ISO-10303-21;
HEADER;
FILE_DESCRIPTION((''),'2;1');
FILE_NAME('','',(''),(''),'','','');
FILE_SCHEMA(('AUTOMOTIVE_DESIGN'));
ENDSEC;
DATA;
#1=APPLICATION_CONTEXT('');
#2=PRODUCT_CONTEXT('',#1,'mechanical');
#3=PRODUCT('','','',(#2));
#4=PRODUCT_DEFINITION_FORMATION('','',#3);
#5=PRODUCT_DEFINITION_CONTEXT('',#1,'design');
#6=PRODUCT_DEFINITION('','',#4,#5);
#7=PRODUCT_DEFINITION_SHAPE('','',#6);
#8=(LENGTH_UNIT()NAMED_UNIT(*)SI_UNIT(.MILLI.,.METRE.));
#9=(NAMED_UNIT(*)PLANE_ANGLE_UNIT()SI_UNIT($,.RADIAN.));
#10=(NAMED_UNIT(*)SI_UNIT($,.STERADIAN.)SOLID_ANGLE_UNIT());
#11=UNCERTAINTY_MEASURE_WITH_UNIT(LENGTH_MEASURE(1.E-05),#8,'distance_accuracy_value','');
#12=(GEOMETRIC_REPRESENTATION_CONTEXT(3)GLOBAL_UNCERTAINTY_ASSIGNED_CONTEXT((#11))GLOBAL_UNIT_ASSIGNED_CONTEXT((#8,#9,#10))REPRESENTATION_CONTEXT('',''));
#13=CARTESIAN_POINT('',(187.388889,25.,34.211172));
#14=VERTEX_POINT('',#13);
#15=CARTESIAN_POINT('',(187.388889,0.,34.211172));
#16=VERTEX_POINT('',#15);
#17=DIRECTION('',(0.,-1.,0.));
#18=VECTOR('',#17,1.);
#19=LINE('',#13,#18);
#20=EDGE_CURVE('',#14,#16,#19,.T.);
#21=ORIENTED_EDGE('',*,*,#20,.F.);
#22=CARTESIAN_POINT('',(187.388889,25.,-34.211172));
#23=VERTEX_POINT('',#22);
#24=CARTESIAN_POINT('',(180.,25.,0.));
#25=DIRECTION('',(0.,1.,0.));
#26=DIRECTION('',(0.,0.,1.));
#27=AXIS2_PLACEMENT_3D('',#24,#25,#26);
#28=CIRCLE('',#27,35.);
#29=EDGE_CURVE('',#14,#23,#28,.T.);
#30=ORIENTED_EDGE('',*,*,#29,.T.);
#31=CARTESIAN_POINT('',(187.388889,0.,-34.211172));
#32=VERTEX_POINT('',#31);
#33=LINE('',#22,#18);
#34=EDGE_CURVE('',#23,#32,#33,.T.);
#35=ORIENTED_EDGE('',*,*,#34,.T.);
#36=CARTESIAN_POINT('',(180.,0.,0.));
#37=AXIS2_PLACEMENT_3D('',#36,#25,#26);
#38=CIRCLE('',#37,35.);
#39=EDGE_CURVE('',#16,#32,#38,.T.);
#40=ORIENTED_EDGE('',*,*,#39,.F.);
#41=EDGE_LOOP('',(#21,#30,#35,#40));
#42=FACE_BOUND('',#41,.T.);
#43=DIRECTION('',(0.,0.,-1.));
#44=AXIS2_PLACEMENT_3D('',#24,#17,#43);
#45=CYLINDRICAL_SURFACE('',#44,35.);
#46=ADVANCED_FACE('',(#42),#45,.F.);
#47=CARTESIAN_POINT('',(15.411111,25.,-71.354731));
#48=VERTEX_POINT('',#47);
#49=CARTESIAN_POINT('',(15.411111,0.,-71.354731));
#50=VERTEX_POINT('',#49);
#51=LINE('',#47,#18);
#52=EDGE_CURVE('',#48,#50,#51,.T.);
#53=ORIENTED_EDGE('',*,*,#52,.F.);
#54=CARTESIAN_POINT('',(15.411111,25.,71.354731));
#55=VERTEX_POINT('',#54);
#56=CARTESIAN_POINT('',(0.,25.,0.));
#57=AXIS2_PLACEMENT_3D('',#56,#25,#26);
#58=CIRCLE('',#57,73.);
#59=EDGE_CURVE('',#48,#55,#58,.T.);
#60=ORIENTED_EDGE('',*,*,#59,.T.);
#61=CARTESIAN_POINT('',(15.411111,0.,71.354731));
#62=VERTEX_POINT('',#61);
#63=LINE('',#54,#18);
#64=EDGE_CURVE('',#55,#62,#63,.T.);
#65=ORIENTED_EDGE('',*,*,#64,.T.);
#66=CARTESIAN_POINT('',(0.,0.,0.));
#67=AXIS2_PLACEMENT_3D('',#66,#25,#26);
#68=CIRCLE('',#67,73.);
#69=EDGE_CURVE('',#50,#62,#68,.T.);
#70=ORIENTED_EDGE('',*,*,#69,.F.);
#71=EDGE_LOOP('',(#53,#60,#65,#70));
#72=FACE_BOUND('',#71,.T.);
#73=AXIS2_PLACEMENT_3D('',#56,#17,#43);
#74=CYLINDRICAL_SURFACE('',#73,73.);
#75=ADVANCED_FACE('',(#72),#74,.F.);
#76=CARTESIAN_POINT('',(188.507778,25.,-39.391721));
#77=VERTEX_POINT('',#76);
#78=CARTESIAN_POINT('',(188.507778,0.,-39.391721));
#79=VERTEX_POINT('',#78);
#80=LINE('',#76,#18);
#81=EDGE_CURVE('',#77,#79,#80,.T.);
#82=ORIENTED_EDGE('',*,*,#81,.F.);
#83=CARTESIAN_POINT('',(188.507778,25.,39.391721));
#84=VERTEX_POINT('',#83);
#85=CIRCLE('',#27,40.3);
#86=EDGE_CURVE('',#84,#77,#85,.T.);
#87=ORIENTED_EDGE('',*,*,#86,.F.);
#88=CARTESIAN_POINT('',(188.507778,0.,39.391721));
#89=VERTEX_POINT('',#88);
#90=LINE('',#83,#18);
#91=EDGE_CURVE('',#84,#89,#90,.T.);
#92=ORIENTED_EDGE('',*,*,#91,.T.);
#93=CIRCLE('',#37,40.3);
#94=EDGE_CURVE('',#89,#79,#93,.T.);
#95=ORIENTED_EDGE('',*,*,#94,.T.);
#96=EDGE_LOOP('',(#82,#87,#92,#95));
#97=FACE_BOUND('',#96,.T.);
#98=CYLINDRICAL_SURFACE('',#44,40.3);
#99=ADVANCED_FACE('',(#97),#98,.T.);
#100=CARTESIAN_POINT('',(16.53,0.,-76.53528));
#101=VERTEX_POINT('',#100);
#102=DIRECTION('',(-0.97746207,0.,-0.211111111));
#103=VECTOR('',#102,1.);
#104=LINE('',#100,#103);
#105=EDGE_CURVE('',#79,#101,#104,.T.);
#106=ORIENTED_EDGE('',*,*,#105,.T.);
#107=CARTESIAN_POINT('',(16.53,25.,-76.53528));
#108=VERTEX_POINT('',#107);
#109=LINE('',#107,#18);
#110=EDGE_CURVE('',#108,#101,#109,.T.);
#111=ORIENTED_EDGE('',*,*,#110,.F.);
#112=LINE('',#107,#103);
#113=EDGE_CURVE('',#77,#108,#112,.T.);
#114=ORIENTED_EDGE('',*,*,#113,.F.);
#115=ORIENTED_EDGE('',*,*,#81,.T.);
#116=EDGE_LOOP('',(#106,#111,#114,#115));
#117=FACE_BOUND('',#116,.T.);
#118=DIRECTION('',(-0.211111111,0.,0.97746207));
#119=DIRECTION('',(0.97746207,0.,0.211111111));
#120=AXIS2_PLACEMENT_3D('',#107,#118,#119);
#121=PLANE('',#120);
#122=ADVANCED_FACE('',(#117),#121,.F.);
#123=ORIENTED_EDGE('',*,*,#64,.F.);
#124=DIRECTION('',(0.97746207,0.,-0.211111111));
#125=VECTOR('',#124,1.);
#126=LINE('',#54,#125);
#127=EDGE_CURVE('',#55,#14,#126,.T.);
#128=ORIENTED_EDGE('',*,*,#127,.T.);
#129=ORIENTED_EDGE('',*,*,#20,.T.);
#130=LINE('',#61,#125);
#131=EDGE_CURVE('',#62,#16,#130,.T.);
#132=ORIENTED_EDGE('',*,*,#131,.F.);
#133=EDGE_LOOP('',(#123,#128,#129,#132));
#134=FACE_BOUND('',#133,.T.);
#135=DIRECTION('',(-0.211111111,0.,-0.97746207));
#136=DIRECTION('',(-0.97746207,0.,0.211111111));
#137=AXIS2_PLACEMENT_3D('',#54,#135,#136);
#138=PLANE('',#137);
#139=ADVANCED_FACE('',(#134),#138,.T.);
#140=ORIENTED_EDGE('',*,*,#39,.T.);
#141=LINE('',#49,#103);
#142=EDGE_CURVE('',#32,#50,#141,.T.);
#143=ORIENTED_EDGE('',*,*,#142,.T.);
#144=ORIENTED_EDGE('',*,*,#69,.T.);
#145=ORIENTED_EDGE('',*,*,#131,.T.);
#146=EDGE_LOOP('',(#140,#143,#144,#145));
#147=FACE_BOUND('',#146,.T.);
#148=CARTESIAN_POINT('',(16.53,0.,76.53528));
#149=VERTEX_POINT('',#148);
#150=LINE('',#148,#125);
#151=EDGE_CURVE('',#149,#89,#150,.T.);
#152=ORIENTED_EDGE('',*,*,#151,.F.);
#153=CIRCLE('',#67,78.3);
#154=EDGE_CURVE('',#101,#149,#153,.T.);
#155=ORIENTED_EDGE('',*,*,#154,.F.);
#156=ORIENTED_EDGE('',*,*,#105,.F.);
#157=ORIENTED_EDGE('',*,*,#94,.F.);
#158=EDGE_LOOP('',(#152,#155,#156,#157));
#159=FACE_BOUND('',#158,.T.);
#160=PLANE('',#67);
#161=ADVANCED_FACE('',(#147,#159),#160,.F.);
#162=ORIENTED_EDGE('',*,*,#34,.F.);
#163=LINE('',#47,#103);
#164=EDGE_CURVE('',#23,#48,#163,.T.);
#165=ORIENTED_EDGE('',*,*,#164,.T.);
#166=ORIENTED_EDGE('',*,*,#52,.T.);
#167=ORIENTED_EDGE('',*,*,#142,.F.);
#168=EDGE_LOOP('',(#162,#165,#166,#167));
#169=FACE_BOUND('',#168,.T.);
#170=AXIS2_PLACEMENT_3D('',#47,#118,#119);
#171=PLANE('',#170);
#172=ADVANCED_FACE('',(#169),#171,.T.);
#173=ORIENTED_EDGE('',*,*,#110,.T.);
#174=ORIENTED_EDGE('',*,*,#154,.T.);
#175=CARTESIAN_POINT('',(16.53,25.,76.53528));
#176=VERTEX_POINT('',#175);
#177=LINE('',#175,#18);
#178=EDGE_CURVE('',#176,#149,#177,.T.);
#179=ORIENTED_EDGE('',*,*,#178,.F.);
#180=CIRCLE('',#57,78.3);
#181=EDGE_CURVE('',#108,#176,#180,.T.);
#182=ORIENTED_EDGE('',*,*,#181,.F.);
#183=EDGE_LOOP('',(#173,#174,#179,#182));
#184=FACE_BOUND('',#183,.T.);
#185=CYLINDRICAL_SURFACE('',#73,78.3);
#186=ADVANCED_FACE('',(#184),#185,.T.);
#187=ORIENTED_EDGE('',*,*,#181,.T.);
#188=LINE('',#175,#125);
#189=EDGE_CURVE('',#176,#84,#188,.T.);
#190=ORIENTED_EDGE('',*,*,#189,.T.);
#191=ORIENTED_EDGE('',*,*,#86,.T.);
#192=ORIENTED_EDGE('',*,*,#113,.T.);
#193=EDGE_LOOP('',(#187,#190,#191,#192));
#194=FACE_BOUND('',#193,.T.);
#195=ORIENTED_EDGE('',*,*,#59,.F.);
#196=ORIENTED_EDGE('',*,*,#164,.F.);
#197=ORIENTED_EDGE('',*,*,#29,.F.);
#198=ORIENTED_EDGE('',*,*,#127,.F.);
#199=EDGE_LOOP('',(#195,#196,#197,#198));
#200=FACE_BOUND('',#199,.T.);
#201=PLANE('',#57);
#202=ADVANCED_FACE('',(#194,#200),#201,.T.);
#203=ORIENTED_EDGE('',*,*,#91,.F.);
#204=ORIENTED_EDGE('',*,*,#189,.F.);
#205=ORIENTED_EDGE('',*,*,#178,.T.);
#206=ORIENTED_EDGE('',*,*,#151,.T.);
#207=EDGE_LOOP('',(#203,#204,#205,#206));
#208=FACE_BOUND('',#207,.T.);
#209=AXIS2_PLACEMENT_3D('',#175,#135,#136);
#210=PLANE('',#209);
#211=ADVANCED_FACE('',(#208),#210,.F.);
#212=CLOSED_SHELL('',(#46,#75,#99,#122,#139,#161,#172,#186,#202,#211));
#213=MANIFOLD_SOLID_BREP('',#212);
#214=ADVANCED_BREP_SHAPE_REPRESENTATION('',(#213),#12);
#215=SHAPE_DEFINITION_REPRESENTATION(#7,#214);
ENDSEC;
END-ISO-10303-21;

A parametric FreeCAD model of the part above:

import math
import FreeCAD as App
import Part
import Sketcher

V = App.Vector

doc = App.newDocument("Part")
body = doc.addObject("PartDesign::Body", "Body")

# Sketch on XZ plane
sketch1 = body.newObject("Sketcher::SketchObject", "Sketch")
sketch1.AttachmentSupport = (doc.getObject("XZ_Plane"), [""])
sketch1.MapMode = "FlatFace"
sketch1.addGeometry([
    Part.LineSegment(V(189, -39, 0), V(17, -77, 0)),  # 0
    Part.ArcOfCircle(Part.Circle(V(0, 0, 0), V(0, 0, 1), 78), math.radians(78), math.radians(282)),  # 1
    Part.LineSegment(V(17, 77, 0), V(189, 39, 0)),  # 2
    Part.ArcOfCircle(Part.Circle(V(180, 0, 0), V(0, 0, 1), 40), math.radians(-78), math.radians(78)),  # 3
    Part.ArcOfCircle(Part.Circle(V(0, 0, 0), V(0, 0, 1), 73), math.radians(78), math.radians(282)),  # 4
    Part.LineSegment(V(15, -71, 0), V(187, -34, 0)),  # 5
    Part.ArcOfCircle(Part.Circle(V(180, 0, 0), V(0, 0, 1), 35), math.radians(-78), math.radians(78)),  # 6
    Part.LineSegment(V(187, 34, 0), V(15, 71, 0)),  # 7
], False)
sketch1.addConstraint([
    Sketcher.Constraint("Tangent", 0, 2, 1, 2),
    Sketcher.Constraint("Tangent", 1, 1, 2, 1),
    Sketcher.Constraint("Tangent", 2, 2, 3, 2),
    Sketcher.Constraint("Tangent", 3, 1, 0, 1),
    Sketcher.Constraint("Tangent", 4, 2, 5, 1),
    Sketcher.Constraint("Tangent", 5, 2, 6, 1),
    Sketcher.Constraint("Tangent", 6, 2, 7, 1),
    Sketcher.Constraint("Tangent", 7, 2, 4, 1),
    Sketcher.Constraint("Coincident", 1, 3, -1, 1),
    Sketcher.Constraint("Coincident", 4, 3, -1, 1),
    Sketcher.Constraint("Coincident", 6, 3, 3, 3),
    Sketcher.Constraint("PointOnObject", 3, 3, -1),
    Sketcher.Constraint("Parallel", 0, 5),
    Sketcher.Constraint("Radius", 4, 73.0),
    Sketcher.Constraint("Radius", 6, 35.0),
    Sketcher.Constraint("Radius", 1, 78.3),
    Sketcher.Constraint("DistanceX", -1, 1, 3, 3, 180.0),
])
pad1 = body.newObject("PartDesign::Pad", "Pad")
pad1.Profile = sketch1
pad1.Length = 25
pad1.Reversed = True

doc.recompute()
